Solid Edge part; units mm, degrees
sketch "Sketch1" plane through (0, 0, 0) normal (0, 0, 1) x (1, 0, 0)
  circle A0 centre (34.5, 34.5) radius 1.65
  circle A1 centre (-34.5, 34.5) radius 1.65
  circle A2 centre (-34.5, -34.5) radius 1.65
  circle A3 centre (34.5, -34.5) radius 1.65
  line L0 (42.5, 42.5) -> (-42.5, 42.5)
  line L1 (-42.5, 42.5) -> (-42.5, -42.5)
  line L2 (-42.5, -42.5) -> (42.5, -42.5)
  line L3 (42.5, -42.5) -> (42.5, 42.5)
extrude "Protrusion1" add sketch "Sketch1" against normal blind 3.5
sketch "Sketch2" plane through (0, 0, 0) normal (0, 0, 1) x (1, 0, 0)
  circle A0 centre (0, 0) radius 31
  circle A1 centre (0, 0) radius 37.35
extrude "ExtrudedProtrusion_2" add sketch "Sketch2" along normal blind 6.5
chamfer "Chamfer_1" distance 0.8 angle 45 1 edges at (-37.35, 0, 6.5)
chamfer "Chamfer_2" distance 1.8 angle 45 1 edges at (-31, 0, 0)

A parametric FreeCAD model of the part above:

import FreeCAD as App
import Part
import Sketcher


def edges_at(feature, points):
    """Names of the edges that pass closest to the given points."""
    edges = feature.Shape.Edges
    near = lambda p: min(range(len(edges)), key=lambda i: edges[i].distToShape(Part.Vertex(*p))[0])
    return sorted({f"Edge{near(p) + 1}" for p in points})


def add_polygon(sketch, points):
    """Adds a closed chain of lines whose ends are joined by coincident constraints."""
    first, n = sketch.GeometryCount, len(points)
    for a, b in zip(points, points[1:] + points[:1]):
        sketch.addGeometry(Part.LineSegment(App.Vector(*a, 0), App.Vector(*b, 0)), False)
    for i in range(n):
        sketch.addConstraint(Sketcher.Constraint("Coincident", first + i, 2, first + (i + 1) % n, 1))

doc = App.newDocument("Part")
params = doc.addObject("Spreadsheet::Sheet", "Params")
for row, (alias, value) in enumerate([
    ("sketch1_diameter", "3.3 mm"),
    ("sketch1_width", "85 mm"),
    ("pad1_length", "3.5 mm"),
    ("sketch2_diameter", "62 mm"),
    ("sketch2_diameter2", "74.7 mm"),
    ("pad2_length", "6.5 mm"),
    ("chamfer_size", "0.8 mm"),
    ("chamfer2_size", "1.8 mm"),
], start=1):
    params.set(f"A{row}", alias)
    params.set(f"B{row}", "=" + value)
    params.setAlias(f"B{row}", alias)

body = doc.addObject("PartDesign::Body", "Body")

# Sketch on XY plane
sketch1 = body.newObject("Sketcher::SketchObject", "Sketch")
sketch1.AttachmentSupport = (doc.getObject("XY_Plane"), [""])
sketch1.MapMode = "FlatFace"
add_polygon(sketch1, [(42.5, -42.5), (42.5, 42.5), (-42.5, 42.5), (-42.5, -42.5)])  # lines 0-3
sketch1.addGeometry(Part.Circle(App.Vector(-34.5, -34.5, 0), App.Vector(0, 0, 1), 1.65), False)  # 4
sketch1.addGeometry(Part.Circle(App.Vector(34.5, -34.5, 0), App.Vector(0, 0, 1), 1.65), False)  # 5
sketch1.addGeometry(Part.Circle(App.Vector(-34.5, 34.5, 0), App.Vector(0, 0, 1), 1.65), False)  # 6
sketch1.addGeometry(Part.Circle(App.Vector(34.5, 34.5, 0), App.Vector(0, 0, 1), 1.65), False)  # 7
sketch1.addConstraint(Sketcher.Constraint("Vertical", 0))
sketch1.addConstraint(Sketcher.Constraint("Horizontal", 1))
sketch1.addConstraint(Sketcher.Constraint("Vertical", 2))
sketch1.addConstraint(Sketcher.Constraint("Horizontal", 3))
sketch1.addConstraint(Sketcher.Constraint("Equal", 4, 5))
sketch1.addConstraint(Sketcher.Constraint("Equal", 5, 6))
sketch1.addConstraint(Sketcher.Constraint("Equal", 6, 7))
sketch1.addConstraint(Sketcher.Constraint("Symmetric", 5, 3, 6, 3, -1, 1))
sketch1.addConstraint(Sketcher.Constraint("Symmetric", 4, 3, 7, 3, -1, 1))
sketch1.addConstraint(Sketcher.Constraint("Symmetric", 0, 2, 2, 2, -1, 1))
sketch1.addConstraint(Sketcher.Constraint("Symmetric", 4, 3, 5, 3, -2))
sketch1.addConstraint(Sketcher.Constraint("Equal", 3, 0))
sketch1.addConstraint(Sketcher.Constraint("Diameter", 4, 3.3))
sketch1.addConstraint(Sketcher.Constraint("DistanceX", 1, 2, 1, 1, 85.0))
sketch1.addConstraint(Sketcher.Constraint("DistanceX", 4, 3, 5, 3, 69.0))
sketch1.addConstraint(Sketcher.Constraint("DistanceY", 4, 3, 6, 3, 69.0))
sketch1.setExpression("Constraints[16]", "Params.sketch1_diameter")
sketch1.setExpression("Constraints[17]", "Params.sketch1_width")
pad1 = body.newObject("PartDesign::Pad", "Pad")
pad1.Profile = sketch1
pad1.setExpression("Length", "Params.pad1_length")
pad1.Reversed = True

# Sketch on XY plane
sketch2 = body.newObject("Sketcher::SketchObject", "Sketch001")
sketch2.AttachmentSupport = (doc.getObject("XY_Plane"), [""])
sketch2.MapMode = "FlatFace"
sketch2.addGeometry(Part.Circle(App.Vector(0, 0, 0), App.Vector(0, 0, 1), 37.35), False)
sketch2.addGeometry(Part.Circle(App.Vector(0, 0, 0), App.Vector(0, 0, 1), 31), False)
sketch2.addConstraint(Sketcher.Constraint("Coincident", 0, 3, -1, 1))
sketch2.addConstraint(Sketcher.Constraint("Coincident", 1, 3, -1, 1))
sketch2.addConstraint(Sketcher.Constraint("Diameter", 1, 62.0))
sketch2.addConstraint(Sketcher.Constraint("Diameter", 0, 74.7))
sketch2.setExpression("Constraints[2]", "Params.sketch2_diameter")
sketch2.setExpression("Constraints[3]", "Params.sketch2_diameter2")
pad2 = body.newObject("PartDesign::Pad", "Pad001")
pad2.Profile = sketch2
pad2.setExpression("Length", "Params.pad2_length")
doc.recompute()

chamfer = body.newObject("PartDesign::Chamfer", "Chamfer")
chamfer.Base = (pad2, edges_at(pad2, [(-37.35, 0, 6.5)]))
chamfer.setExpression("Size", "Params.chamfer_size")
doc.recompute()

chamfer2 = body.newObject("PartDesign::Chamfer", "Chamfer001")
chamfer2.Base = (chamfer, edges_at(chamfer, [(-31, 0, 0)]))
chamfer2.setExpression("Size", "Params.chamfer2_size")

doc.recompute()
